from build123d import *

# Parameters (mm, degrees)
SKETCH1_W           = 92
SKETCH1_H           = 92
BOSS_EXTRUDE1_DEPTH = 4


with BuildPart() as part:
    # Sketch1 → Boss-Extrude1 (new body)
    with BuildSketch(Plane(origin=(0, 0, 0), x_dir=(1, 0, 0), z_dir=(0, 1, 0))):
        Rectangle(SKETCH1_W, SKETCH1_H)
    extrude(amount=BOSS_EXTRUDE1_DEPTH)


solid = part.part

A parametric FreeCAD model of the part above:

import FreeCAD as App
import Part
import Sketcher

V = App.Vector
Q = App.Units.Quantity


def add_polygon(sketch, points):
    """Adds a closed chain of lines whose ends are joined by coincident constraints."""
    first, n = sketch.GeometryCount, len(points)
    for a, b in zip(points, points[1:] + points[:1]):
        sketch.addGeometry(Part.LineSegment(App.Vector(*a, 0), App.Vector(*b, 0)), False)
    for i in range(n):
        sketch.addConstraint(Sketcher.Constraint("Coincident", first + i, 2, first + (i + 1) % n, 1))

doc = App.newDocument("Part")
body = doc.addObject("PartDesign::Body", "Body")

sketch1 = doc.addObject("Sketcher::SketchObject", "Sketch")
body.addObject(sketch1)
sketch1.AttachmentSupport = (doc.XZ_Plane, [""])
sketch1.MapMode = "FlatFace"
add_polygon(sketch1, [(-46, -46), (-46, 46), (46, 46), (46, -46)])
sketch1.addConstraint([
    Sketcher.Constraint("Vertical", 0),
    Sketcher.Constraint("Horizontal", 1),
    Sketcher.Constraint("Vertical", 2),
    Sketcher.Constraint("Horizontal", 3),
    Sketcher.Constraint("Symmetric", 0, 2, 2, 2, -1, 1),
    Sketcher.Constraint("Equal", 3, 0),
    Sketcher.Constraint("DistanceX", 1, 1, 1, 2, Q("92 mm")),
])
pad1 = doc.addObject("PartDesign::Pad", "Pad")
body.addObject(pad1)
pad1.Profile = sketch1
pad1.Length = 4
pad1.Reversed = True

doc.recompute()
